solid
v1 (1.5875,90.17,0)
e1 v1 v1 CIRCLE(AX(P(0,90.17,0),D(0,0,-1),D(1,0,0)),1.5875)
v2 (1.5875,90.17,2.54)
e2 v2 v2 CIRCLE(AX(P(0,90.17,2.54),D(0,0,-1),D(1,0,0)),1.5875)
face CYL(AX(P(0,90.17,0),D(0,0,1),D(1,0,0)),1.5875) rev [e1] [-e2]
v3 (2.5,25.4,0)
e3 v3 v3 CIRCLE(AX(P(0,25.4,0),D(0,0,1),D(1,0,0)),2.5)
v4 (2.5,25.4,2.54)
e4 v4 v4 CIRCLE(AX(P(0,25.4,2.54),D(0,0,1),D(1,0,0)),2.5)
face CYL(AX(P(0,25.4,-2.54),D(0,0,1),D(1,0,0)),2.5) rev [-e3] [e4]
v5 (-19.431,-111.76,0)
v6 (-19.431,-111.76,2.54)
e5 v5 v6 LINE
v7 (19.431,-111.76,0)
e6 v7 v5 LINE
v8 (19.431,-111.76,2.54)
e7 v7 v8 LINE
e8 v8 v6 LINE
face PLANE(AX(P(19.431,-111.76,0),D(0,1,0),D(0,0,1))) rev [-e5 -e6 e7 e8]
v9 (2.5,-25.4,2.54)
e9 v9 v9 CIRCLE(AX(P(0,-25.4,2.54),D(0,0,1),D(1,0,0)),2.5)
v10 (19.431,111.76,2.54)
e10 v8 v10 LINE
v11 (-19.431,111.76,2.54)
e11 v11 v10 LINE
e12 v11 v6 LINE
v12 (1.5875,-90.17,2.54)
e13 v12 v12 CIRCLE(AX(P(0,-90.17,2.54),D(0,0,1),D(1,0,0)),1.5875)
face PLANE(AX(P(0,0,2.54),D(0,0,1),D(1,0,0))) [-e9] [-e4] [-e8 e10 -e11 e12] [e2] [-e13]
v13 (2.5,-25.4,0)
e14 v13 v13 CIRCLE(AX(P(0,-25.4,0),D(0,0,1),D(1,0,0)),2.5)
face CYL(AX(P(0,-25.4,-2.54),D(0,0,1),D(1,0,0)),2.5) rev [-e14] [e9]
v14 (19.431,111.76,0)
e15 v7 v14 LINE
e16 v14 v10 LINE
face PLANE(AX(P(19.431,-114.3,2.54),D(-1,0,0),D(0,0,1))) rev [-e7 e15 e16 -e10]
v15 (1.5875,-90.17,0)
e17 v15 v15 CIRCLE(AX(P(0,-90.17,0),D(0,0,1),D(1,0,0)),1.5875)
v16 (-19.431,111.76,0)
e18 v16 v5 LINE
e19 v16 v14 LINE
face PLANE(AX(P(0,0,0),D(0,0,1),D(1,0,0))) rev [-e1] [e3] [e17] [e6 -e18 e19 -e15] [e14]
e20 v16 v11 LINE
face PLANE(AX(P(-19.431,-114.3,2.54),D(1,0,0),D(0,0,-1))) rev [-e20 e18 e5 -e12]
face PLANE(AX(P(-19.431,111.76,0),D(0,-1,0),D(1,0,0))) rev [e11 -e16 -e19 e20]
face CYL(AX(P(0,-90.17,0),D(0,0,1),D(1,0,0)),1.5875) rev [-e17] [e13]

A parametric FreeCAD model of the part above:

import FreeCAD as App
import Part
import Sketcher

V = App.Vector
Q = App.Units.Quantity

doc = App.newDocument("Part")
body = doc.addObject("PartDesign::Body", "Body")

# Sketch on XY plane
sketch1 = doc.addObject("Sketcher::SketchObject", "Sketch")
body.addObject(sketch1)
sketch1.AttachmentSupport = (doc.XY_Plane, [""])
sketch1.MapMode = "FlatFace"
sketch1.addGeometry([
    Part.LineSegment(V(-19, 114, 0), V(-19, -114, 0)),
    Part.LineSegment(V(-19, -114, 0), V(19, -114, 0)),
    Part.LineSegment(V(19, -114, 0), V(19, 114, 0)),
    Part.LineSegment(V(19, 114, 0), V(-19, 114, 0)),
], False)
sketch1.addConstraint([
    Sketcher.Constraint("Coincident", 0, 2, 1, 1),
    Sketcher.Constraint("Coincident", 1, 2, 2, 1),
    Sketcher.Constraint("Coincident", 2, 2, 3, 1),
    Sketcher.Constraint("Coincident", 3, 2, 0, 1),
    Sketcher.Constraint("Vertical", 0),
    Sketcher.Constraint("Horizontal", 1),
    Sketcher.Constraint("Vertical", 2),
    Sketcher.Constraint("Horizontal", 3),
    Sketcher.Constraint("Symmetric", 0, 2, 2, 2, -1, 1),
    Sketcher.Constraint("DistanceY", 0, 2, 0, 1, Q("9 in")),
    Sketcher.Constraint("DistanceX", 1, 1, 1, 2, Q("1.53 in")),
])
pad1 = doc.addObject("PartDesign::Pad", "Pad")
body.addObject(pad1)
pad1.Profile = sketch1
pad1.Length = Q("0.1 in")

# Sketch on XY plane
sketch2 = doc.addObject("Sketcher::SketchObject", "Sketch001")
body.addObject(sketch2)
sketch2.AttachmentSupport = (doc.XY_Plane, [""])
sketch2.MapMode = "FlatFace"
sketch2.AttachmentOffset = App.Placement(V(0, 0, 0.1 * 25.4), App.Rotation())
sketch2.addGeometry(Part.Circle(V(0, -90.2, 0), V(0, 0, 1), 1.6), False)
sketch2.addConstraint([
    Sketcher.Constraint("PointOnObject", 0, 3, -2),
    Sketcher.Constraint("Diameter", 0, Q("0.125 in")),
    Sketcher.Constraint("DistanceY", 0, 3, -1, 1, Q("3.55 in")),
])
pocket1 = doc.addObject("PartDesign::Pocket", "Pocket")
body.addObject(pocket1)
pocket1.Profile = sketch2
pocket1.Type = "ThroughAll"
doc.recompute()

mirrored = doc.addObject("PartDesign::Mirrored", "Mirrored")
body.addObject(mirrored)
mirrored.Originals = [pocket1]
mirrored.MirrorPlane = (doc.XZ_Plane, [""])
body.Tip = mirrored

# Sketch on XY plane
sketch3 = doc.addObject("Sketcher::SketchObject", "Sketch002")
body.addObject(sketch3)
sketch3.AttachmentSupport = (doc.XY_Plane, [""])
sketch3.MapMode = "FlatFace"
sketch3.AttachmentOffset = App.Placement(V(0, 0, 0.1 * 25.4), App.Rotation())
sketch3.addGeometry([
    Part.Circle(V(0, -25.4, 0), V(0, 0, 1), 2.5),
    Part.Circle(V(0, 25.4, 0), V(0, 0, 1), 2.5),
], False)
sketch3.addConstraint([
    Sketcher.Constraint("Equal", 0, 1),
    Sketcher.Constraint("Symmetric", 0, 3, 1, 3, -1, 1),
    Sketcher.Constraint("PointOnObject", 0, 3, -2),
    Sketcher.Constraint("DistanceY", 0, 3, -1, 1, Q("1 in")),
    Sketcher.Constraint("Diameter", 0, 5.0),
])
pocket2 = doc.addObject("PartDesign::Pocket", "Pocket001")
body.addObject(pocket2)
pocket2.Profile = sketch3
pocket2.Length = Q("0.2 in")

# Sketch on XY plane
sketch4 = doc.addObject("Sketcher::SketchObject", "Sketch003")
body.addObject(sketch4)
sketch4.AttachmentSupport = (doc.XY_Plane, [""])
sketch4.MapMode = "FlatFace"
sketch4.AttachmentOffset = App.Placement(V(0, 0, 0.1 * 25.4), App.Rotation())
sketch4.addGeometry([
    Part.LineSegment(V(-19.4, 114.3, 0), V(-19.4, 111.8, 0)),  # 0
    Part.LineSegment(V(-19.4, 111.8, 0), V(19.4, 111.8, 0)),  # 1
    Part.LineSegment(V(19.4, 111.8, 0), V(19.4, 114.3, 0)),  # 2
    Part.LineSegment(V(19.4, 114.3, 0), V(-19.4, 114.3, 0)),  # 3
    Part.LineSegment(V(-19.4, -111.8, 0), V(-19.4, -114.3, 0)),  # 4
    Part.LineSegment(V(-19.4, -114.3, 0), V(19.4, -114.3, 0)),  # 5
    Part.LineSegment(V(19.4, -114.3, 0), V(19.4, -111.8, 0)),  # 6
    Part.LineSegment(V(19.4, -111.8, 0), V(-19.4, -111.8, 0)),  # 7
], False)
sketch4.addConstraint([
    Sketcher.Constraint("Coincident", 0, 2, 1, 1),
    Sketcher.Constraint("Coincident", 1, 2, 2, 1),
    Sketcher.Constraint("Coincident", 2, 2, 3, 1),
    Sketcher.Constraint("Coincident", 3, 2, 0, 1),
    Sketcher.Constraint("Coincident", 4, 2, 5, 1),
    Sketcher.Constraint("Coincident", 5, 2, 6, 1),
    Sketcher.Constraint("Coincident", 6, 2, 7, 1),
    Sketcher.Constraint("Coincident", 7, 2, 4, 1),
    Sketcher.Constraint("Vertical", 0),
    Sketcher.Constraint("Horizontal", 1),
    Sketcher.Constraint("Vertical", 2),
    Sketcher.Constraint("Horizontal", 3),
    Sketcher.Constraint("Vertical", 4),
    Sketcher.Constraint("Horizontal", 5),
    Sketcher.Constraint("Vertical", 6),
    Sketcher.Constraint("Horizontal", 7),
    Sketcher.Constraint("Symmetric", 2, 2, 4, 2, -1, 1),
    Sketcher.Constraint("Symmetric", 0, 2, 6, 2, -1, 1),
    Sketcher.Constraint("Vertical", 3, 2, 4, 2),
    Sketcher.Constraint("DistanceY", 0, 2, 0, 1, Q("0.1 in")),
    Sketcher.Constraint("DistanceY", 4, 2, 3, 2, Q("9 in")),
    Sketcher.Constraint("DistanceX", 1, 1, 1, 2, Q("1.53 in")),
])
pocket3 = doc.addObject("PartDesign::Pocket", "Pocket002")
body.addObject(pocket3)
pocket3.Profile = sketch4
pocket3.Type = "ThroughAll"

doc.recompute()
